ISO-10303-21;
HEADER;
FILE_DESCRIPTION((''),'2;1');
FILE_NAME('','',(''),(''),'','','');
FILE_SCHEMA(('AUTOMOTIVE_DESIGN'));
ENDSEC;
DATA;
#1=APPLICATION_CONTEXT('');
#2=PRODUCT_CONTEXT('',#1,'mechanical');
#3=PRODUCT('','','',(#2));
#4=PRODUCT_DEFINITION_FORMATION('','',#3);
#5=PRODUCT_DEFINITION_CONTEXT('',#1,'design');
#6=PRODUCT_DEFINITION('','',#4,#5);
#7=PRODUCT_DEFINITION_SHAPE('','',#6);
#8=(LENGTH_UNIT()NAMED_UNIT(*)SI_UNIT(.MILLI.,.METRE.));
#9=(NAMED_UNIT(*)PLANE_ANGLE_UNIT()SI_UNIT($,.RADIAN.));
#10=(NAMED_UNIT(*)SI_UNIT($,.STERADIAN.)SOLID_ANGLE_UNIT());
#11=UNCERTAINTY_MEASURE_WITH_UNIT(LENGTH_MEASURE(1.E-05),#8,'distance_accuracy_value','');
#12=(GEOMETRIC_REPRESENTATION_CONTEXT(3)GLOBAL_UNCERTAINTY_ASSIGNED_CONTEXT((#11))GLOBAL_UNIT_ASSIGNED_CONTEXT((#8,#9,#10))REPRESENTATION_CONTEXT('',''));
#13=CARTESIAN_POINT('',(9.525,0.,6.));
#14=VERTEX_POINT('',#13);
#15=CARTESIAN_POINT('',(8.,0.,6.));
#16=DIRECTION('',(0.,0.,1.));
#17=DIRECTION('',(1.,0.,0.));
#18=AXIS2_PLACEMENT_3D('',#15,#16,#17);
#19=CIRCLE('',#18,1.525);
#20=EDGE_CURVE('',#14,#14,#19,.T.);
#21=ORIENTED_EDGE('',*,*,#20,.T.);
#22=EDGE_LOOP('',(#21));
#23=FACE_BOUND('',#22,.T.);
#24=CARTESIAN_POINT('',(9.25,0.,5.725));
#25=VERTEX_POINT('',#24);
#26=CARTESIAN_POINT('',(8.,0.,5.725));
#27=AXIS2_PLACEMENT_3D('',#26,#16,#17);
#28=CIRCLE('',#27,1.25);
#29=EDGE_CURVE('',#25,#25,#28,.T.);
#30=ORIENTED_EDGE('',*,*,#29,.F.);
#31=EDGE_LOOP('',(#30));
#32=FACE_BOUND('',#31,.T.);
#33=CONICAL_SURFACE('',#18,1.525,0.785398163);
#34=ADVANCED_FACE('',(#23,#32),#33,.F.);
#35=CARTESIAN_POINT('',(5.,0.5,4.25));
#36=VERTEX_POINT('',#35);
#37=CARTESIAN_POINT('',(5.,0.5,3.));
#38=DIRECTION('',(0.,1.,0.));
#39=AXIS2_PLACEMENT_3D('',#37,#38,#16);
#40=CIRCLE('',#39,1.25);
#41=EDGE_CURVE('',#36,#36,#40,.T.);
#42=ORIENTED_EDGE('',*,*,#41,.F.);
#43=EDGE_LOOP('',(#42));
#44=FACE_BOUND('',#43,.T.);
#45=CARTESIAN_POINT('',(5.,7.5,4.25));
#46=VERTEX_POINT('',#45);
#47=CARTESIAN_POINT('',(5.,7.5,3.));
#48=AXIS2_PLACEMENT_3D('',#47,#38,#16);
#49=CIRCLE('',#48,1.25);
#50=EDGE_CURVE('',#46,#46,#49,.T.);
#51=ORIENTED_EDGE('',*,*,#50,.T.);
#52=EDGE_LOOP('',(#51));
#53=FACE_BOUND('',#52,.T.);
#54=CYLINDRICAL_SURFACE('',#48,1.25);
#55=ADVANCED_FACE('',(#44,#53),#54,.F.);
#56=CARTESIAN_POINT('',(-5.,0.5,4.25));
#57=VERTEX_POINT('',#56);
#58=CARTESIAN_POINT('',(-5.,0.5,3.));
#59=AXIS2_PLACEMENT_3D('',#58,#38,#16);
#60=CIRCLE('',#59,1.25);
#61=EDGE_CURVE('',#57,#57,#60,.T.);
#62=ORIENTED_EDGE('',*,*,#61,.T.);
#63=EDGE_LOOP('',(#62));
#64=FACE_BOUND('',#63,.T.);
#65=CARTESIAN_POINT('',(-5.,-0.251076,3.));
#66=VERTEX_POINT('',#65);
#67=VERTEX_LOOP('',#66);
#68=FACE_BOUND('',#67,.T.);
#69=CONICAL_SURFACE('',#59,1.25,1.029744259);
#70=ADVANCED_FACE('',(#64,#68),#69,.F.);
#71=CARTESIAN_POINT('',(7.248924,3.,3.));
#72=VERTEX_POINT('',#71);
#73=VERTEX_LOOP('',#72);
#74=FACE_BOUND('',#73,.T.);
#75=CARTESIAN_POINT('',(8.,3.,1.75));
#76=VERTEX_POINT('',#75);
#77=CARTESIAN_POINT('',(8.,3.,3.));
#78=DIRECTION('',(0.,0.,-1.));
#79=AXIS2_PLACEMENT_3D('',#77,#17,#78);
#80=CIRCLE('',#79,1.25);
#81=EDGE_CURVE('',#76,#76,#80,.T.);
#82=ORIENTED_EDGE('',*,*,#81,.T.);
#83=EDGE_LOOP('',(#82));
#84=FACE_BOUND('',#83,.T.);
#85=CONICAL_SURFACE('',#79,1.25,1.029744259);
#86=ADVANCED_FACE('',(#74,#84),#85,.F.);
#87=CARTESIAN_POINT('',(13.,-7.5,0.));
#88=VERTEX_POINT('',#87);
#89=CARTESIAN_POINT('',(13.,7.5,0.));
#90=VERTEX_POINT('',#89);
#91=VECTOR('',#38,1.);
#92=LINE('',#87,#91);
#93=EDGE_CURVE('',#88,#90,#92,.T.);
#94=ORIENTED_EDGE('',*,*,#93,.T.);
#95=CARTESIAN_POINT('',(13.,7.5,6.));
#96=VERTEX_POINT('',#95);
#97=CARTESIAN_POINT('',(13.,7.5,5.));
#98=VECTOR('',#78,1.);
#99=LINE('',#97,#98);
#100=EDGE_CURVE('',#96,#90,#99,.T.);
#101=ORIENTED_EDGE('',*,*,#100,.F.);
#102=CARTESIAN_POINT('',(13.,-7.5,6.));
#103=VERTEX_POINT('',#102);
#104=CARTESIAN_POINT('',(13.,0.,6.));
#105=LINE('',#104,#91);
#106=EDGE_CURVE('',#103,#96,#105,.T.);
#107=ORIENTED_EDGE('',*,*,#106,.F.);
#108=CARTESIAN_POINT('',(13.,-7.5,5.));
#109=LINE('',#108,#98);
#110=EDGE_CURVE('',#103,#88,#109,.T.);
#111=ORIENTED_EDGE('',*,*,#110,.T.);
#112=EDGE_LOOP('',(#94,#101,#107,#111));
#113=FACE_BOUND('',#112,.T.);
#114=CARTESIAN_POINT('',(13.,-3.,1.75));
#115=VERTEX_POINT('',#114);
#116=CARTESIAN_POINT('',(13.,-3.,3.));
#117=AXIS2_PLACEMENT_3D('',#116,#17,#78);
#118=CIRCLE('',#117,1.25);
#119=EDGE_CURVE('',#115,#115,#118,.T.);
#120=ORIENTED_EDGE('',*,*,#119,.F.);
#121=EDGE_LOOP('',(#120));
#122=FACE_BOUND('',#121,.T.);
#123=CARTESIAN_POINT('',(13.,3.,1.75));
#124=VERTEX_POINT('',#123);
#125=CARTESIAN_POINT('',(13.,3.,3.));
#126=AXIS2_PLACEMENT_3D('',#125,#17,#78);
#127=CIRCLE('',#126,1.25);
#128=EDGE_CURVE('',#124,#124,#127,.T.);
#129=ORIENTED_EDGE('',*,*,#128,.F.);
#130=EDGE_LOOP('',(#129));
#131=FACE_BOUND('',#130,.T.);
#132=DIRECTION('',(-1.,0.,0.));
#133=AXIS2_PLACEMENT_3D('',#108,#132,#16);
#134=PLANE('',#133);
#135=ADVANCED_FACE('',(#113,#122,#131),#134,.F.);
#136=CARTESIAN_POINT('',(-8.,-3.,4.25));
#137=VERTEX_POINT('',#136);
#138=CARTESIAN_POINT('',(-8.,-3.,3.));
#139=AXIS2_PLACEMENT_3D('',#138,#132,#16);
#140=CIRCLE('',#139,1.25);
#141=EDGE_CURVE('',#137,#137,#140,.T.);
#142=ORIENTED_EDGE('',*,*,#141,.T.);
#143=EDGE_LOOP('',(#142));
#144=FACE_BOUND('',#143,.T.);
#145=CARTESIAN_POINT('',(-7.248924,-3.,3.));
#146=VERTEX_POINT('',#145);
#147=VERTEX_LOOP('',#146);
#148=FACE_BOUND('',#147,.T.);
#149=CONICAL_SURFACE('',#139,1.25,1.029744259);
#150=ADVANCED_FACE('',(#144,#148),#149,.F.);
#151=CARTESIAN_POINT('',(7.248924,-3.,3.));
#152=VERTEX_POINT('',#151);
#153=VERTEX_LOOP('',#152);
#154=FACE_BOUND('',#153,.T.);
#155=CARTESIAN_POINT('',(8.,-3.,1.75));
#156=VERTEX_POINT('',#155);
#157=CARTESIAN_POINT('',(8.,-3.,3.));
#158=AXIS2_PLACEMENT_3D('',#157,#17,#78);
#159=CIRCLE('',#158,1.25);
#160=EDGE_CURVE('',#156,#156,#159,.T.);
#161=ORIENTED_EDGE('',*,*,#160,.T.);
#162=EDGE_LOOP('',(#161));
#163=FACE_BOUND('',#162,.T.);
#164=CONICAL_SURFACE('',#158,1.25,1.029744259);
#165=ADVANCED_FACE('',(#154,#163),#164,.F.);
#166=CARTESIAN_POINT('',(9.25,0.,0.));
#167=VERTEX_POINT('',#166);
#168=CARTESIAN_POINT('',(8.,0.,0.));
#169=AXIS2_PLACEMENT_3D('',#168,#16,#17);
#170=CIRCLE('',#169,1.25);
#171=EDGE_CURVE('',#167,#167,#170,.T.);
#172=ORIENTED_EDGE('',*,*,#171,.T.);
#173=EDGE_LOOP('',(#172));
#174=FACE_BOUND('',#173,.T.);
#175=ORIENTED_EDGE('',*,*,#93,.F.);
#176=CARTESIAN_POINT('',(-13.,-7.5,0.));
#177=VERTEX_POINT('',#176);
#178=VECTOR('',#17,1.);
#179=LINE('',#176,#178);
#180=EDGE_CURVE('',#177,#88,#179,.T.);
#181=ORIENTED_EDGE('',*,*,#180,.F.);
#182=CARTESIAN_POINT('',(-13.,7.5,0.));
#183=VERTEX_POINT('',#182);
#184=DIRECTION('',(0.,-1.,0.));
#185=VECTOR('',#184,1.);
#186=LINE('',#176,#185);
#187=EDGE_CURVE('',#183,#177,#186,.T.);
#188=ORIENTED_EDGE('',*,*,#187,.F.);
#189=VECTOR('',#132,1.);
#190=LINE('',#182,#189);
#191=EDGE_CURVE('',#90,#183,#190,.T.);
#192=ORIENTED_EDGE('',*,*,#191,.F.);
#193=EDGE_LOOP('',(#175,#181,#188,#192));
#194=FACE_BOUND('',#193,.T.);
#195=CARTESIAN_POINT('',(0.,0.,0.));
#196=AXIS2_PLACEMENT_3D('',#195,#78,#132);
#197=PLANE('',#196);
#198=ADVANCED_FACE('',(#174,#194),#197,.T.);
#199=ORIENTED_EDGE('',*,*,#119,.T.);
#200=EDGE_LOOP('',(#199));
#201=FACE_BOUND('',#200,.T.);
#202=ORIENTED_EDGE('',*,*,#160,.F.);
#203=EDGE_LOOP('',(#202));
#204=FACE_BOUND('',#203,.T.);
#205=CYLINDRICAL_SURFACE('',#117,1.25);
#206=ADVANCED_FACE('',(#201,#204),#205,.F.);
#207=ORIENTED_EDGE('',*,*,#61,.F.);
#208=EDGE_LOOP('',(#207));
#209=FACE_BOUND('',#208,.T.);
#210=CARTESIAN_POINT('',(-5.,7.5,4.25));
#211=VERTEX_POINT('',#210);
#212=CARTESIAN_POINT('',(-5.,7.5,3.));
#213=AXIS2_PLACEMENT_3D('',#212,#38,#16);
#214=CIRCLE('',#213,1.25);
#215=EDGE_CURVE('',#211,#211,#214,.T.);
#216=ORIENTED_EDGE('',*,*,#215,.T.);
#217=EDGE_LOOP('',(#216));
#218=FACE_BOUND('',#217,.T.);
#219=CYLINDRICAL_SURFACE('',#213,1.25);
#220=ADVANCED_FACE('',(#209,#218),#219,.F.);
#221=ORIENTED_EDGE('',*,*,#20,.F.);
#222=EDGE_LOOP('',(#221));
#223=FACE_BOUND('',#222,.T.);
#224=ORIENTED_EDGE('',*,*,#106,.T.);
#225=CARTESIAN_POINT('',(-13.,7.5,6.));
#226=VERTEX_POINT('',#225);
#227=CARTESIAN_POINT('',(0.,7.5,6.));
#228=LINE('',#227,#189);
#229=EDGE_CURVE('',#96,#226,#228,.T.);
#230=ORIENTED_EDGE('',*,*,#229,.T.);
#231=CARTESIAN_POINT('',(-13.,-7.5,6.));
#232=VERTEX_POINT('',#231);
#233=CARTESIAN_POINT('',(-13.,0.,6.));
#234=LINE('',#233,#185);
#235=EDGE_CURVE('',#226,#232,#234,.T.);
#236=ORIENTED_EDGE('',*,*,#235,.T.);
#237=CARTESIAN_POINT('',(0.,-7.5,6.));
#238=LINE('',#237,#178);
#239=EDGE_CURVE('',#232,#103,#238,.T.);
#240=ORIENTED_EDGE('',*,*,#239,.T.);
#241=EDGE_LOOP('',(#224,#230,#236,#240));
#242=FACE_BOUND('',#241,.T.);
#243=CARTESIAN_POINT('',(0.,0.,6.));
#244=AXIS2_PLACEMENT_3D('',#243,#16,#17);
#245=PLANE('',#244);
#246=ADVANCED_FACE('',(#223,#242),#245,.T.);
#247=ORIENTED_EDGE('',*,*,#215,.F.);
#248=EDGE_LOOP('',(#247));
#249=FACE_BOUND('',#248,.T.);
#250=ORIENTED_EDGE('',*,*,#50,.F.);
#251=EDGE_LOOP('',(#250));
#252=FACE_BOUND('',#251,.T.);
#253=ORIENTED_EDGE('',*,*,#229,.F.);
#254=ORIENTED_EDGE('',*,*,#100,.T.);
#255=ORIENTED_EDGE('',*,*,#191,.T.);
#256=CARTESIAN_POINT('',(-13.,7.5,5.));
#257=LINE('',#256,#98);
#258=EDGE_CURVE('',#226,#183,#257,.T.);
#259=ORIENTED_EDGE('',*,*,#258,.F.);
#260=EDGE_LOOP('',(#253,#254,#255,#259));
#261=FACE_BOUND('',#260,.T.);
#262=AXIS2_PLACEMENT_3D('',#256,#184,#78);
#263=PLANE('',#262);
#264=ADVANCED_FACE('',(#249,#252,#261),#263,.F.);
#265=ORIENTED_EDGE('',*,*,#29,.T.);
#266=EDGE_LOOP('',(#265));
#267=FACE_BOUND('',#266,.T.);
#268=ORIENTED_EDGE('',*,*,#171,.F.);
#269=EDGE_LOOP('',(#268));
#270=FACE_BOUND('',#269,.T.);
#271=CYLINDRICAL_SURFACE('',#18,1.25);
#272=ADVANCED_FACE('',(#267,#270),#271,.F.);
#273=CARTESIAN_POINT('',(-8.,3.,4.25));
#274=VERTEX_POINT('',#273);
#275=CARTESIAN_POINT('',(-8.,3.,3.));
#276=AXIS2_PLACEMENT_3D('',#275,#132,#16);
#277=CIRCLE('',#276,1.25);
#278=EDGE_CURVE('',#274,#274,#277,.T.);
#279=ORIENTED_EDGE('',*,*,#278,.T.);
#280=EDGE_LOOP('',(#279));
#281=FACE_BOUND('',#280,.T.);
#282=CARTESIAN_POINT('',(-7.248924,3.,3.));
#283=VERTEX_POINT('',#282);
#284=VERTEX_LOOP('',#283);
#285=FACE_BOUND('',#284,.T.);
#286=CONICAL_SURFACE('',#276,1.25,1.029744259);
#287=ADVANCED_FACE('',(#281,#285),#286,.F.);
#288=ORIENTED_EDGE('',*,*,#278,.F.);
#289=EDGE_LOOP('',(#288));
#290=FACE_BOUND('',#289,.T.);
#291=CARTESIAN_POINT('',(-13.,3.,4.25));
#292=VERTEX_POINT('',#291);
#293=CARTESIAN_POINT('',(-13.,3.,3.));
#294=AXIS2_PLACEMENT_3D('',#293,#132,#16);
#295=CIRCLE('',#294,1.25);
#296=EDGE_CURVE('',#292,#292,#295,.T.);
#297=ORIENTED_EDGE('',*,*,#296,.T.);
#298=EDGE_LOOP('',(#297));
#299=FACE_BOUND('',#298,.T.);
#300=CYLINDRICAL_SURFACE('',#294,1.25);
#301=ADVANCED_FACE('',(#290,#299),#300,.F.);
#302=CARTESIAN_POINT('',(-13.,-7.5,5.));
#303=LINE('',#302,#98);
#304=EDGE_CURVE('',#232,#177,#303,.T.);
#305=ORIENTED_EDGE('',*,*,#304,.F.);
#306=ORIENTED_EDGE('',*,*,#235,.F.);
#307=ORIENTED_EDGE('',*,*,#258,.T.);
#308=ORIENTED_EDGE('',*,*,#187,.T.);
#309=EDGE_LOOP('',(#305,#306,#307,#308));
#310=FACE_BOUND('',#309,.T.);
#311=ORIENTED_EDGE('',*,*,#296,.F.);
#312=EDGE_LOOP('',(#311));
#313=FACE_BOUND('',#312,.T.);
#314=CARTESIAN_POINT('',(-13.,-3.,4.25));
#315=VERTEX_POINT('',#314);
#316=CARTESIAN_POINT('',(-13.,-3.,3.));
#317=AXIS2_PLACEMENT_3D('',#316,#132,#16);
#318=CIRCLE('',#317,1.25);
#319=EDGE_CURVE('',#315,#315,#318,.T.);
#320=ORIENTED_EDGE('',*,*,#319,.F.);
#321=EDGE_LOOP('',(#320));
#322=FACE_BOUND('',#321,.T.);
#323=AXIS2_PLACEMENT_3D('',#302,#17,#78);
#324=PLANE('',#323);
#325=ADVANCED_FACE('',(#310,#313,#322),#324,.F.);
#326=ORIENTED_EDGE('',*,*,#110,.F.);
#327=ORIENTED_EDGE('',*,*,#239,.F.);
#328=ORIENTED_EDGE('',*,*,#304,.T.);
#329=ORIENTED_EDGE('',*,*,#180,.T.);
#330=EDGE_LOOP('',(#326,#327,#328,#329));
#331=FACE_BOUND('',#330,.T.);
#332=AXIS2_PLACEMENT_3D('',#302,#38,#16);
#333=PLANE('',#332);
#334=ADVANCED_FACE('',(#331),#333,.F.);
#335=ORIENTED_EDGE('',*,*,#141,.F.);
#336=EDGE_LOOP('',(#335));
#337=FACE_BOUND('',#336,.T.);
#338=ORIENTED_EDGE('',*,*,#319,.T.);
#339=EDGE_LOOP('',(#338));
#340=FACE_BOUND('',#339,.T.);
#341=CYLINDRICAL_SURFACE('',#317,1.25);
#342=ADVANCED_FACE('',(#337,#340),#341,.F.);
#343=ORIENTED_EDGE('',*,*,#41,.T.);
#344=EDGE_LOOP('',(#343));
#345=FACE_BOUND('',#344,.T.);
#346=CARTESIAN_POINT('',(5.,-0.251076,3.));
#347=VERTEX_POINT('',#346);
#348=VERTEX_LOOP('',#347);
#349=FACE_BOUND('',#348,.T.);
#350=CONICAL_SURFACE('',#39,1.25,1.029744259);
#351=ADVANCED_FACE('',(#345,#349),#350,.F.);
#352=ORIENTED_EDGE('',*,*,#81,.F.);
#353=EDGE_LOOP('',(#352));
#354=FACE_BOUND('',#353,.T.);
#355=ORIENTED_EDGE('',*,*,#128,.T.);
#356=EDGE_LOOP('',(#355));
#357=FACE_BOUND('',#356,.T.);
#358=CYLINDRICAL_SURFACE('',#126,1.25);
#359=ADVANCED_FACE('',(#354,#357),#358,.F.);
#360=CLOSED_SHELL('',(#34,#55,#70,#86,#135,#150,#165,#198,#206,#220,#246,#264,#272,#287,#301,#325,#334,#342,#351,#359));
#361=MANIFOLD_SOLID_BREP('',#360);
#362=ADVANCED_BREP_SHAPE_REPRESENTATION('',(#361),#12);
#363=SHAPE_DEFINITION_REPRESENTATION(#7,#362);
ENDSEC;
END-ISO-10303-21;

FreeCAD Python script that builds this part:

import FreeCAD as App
import Part
import Sketcher
Q = App.Units.Quantity


def add_polygon(sketch, points):
    """Adds a closed chain of lines whose ends are joined by coincident constraints."""
    first, n = sketch.GeometryCount, len(points)
    for a, b in zip(points, points[1:] + points[:1]):
        sketch.addGeometry(Part.LineSegment(App.Vector(*a, 0), App.Vector(*b, 0)), False)
    for i in range(n):
        sketch.addConstraint(Sketcher.Constraint("Coincident", first + i, 2, first + (i + 1) % n, 1))

doc = App.newDocument("Part")
body = doc.addObject("PartDesign::Body", "Body")

sketch1 = body.newObject("Sketcher::SketchObject", "Sketch")
sketch1.AttachmentSupport = (doc.getObject("XY_Plane"), [""])
sketch1.MapMode = "FlatFace"
add_polygon(sketch1, [(-13, 8), (-13, -8), (13, -8), (13, 8)])
sketch1.addConstraint([
    Sketcher.Constraint("Vertical", 0),
    Sketcher.Constraint("Horizontal", 1),
    Sketcher.Constraint("Vertical", 2),
    Sketcher.Constraint("Horizontal", 3),
    Sketcher.Constraint("Symmetric", 0, 2, 2, 2, -1, 1),
    Sketcher.Constraint("DistanceX", 1, 1, 1, 2, Q("26 mm")),
    Sketcher.Constraint("DistanceY", 0, 2, 0, 1, Q("15 mm")),
])
pad1 = body.newObject("PartDesign::Pad", "Pad")
pad1.Profile = sketch1
pad1.Length = 5

sketch2 = body.newObject("Sketcher::SketchObject", "Sketch001")
sketch2.AttachmentSupport = (doc.getObject("XY_Plane"), [""])
sketch2.MapMode = "FlatFace"
sketch2.AttachmentOffset = App.Placement(App.Vector(0, 0, 5), App.Rotation())
add_polygon(sketch2, [(-13, 8), (-13, -8), (13, -8), (13, 8)])
sketch2.addConstraint([
    Sketcher.Constraint("Vertical", 0),
    Sketcher.Constraint("Horizontal", 1),
    Sketcher.Constraint("Vertical", 2),
    Sketcher.Constraint("Horizontal", 3),
    Sketcher.Constraint("Symmetric", 0, 2, 2, 2, -1, 1),
    Sketcher.Constraint("DistanceX", 1, 1, 1, 2, Q("26 mm")),
    Sketcher.Constraint("DistanceY", 0, 2, 0, 1, Q("15 mm")),
])
pad2 = body.newObject("PartDesign::Pad", "Pad001")
pad2.Profile = sketch2
pad2.Length = 1

sketch3 = body.newObject("Sketcher::SketchObject", "Sketch002")
sketch3.AttachmentSupport = (doc.getObject("XZ_Plane"), [""])
sketch3.MapMode = "FlatFace"
sketch3.AttachmentOffset = App.Placement(App.Vector(0, 0, 3), App.Rotation())
add_polygon(sketch3, [(-7.2, 3), (-13, 3), (-13, 4.2), (-8, 4.2)])
sketch3.addGeometry(Part.LineSegment(App.Vector(-13, 3, 0), App.Vector(-7.2, 3, 0)), True)
sketch3.addConstraint([
    Sketcher.Constraint("Horizontal", 0),
    Sketcher.Constraint("Vertical", 1),
    Sketcher.Constraint("Horizontal", 2),
    Sketcher.Constraint("Horizontal", 4),
    Sketcher.Constraint("Coincident", 4, 1, 0, 2),
    Sketcher.Constraint("Equal", 0, 4),
    Sketcher.Constraint("DistanceX", 2, 1, 2, 2, Q("5 mm")),
    Sketcher.Constraint("Angle", 3, Q("-59 deg")),
    Sketcher.Constraint("DistanceX", 0, 2, -1, 1, Q("13 mm")),
    Sketcher.Constraint("DistanceY", -1, 1, 0, 2, Q("3 mm")),
    Sketcher.Constraint("DistanceY", 1, 1, 1, 2, Q("1.25 mm")),
])
groove = body.newObject("PartDesign::Groove", "Groove")
groove.Profile = sketch3
groove.ReferenceAxis = (sketch3, ["Axis0"])
groove.Angle = 360
doc.recompute()

linearpattern = body.newObject("PartDesign::LinearPattern", "LinearPattern")
linearpattern.Originals = [groove]
linearpattern.Direction = (doc.getObject("Y_Axis"), [""])
linearpattern.Mode = "offset"
linearpattern.Offset = 6
linearpattern.Occurrences = 2
body.Tip = linearpattern
doc.recompute()

mirrored = body.newObject("PartDesign::Mirrored", "Mirrored")
mirrored.Originals = [groove]
mirrored.MirrorPlane = (doc.getObject("YZ_Plane"), [""])
body.Tip = mirrored

sketch4 = body.newObject("Sketcher::SketchObject", "Sketch003")
sketch4.AttachmentSupport = (doc.getObject("XZ_Plane"), [""])
sketch4.MapMode = "FlatFace"
sketch4.AttachmentOffset = App.Placement(App.Vector(0, 0, -3), App.Rotation())
add_polygon(sketch4, [(13, 3), (7.2, 3), (8, 4.2), (13, 4.2)])
sketch4.addGeometry(Part.LineSegment(App.Vector(7.2, 3, 0), App.Vector(13, 3, 0)), True)
sketch4.addConstraint([
    Sketcher.Constraint("Horizontal", 0),
    Sketcher.Constraint("Horizontal", 2),
    Sketcher.Constraint("Vertical", 3),
    Sketcher.Constraint("Horizontal", 4),
    Sketcher.Constraint("Coincident", 4, 1, 0, 2),
    Sketcher.Constraint("Vertical", 2, 2, 4, 2),
    Sketcher.Constraint("DistanceX", 2, 1, 2, 2, Q("5 mm")),
    Sketcher.Constraint("Angle", 1, Q("59 deg")),
    Sketcher.Constraint("DistanceY", -1, 1, 0, 2, Q("3 mm")),
    Sketcher.Constraint("DistanceX", -1, 1, 1, 2, Q("8 mm")),
    Sketcher.Constraint("DistanceY", 3, 2, 3, 1, Q("1.25 mm")),
])
groove2 = body.newObject("PartDesign::Groove", "Groove001")
groove2.Profile = sketch4
groove2.ReferenceAxis = (sketch4, ["Axis0"])
groove2.Angle = 360

sketch5 = body.newObject("Sketcher::SketchObject", "Sketch004")
sketch5.AttachmentSupport = (doc.getObject("XZ_Plane"), [""])
sketch5.MapMode = "FlatFace"
sketch5.AttachmentOffset = App.Placement(App.Vector(0, 0, -7.5), App.Rotation())
sketch5.addGeometry([
    Part.Circle(App.Vector(-5, 3, 0), App.Vector(0, 0, 1), 1.2),
    Part.Circle(App.Vector(5, 3, 0), App.Vector(0, 0, 1), 1.2),
], False)
sketch5.addConstraint([
    Sketcher.Constraint("Equal", 0, 1),
    Sketcher.Constraint("Symmetric", 0, 3, 1, 3, -2),
    Sketcher.Constraint("Diameter", 0, Q("2.5 mm")),
    Sketcher.Constraint("DistanceX", 0, 3, -1, 1, Q("5 mm")),
    Sketcher.Constraint("DistanceY", -1, 1, 0, 3, Q("3 mm")),
])
doc.recompute()
hole = body.newObject("PartDesign::Hole", "Hole")
hole.Profile = sketch5
hole.ThreadType = "None"
hole.Diameter = 2.5
hole.DepthType = "Dimension"
hole.Depth = 7
hole.DrillPoint = "Angled"
hole.DrillPointAngle = 118
hole.Reversed = True

sketch6 = body.newObject("Sketcher::SketchObject", "Sketch005")
sketch6.AttachmentSupport = (doc.getObject("XY_Plane"), [""])
sketch6.MapMode = "FlatFace"
sketch6.AttachmentOffset = App.Placement(App.Vector(0, 0, 6), App.Rotation())
sketch6.addGeometry(Part.Circle(App.Vector(8, 0, 0), App.Vector(0, 0, 1), 1.2), False)
sketch6.addConstraint([
    Sketcher.Constraint("PointOnObject", 0, 3, -1),
    Sketcher.Constraint("Diameter", 0, Q("2.5 mm")),
    Sketcher.Constraint("DistanceX", -1, 1, 0, 3, Q("8 mm")),
])
doc.recompute()
hole2 = body.newObject("PartDesign::Hole", "Hole001")
hole2.Profile = sketch6
hole2.ThreadType = "None"
hole2.Diameter = 2.5
hole2.DepthType = "ThroughAll"
hole2.HoleCutType = "Countersink"
hole2.HoleCutDiameter = 3.05
hole2.HoleCutCountersinkAngle = 90

doc.recompute()
